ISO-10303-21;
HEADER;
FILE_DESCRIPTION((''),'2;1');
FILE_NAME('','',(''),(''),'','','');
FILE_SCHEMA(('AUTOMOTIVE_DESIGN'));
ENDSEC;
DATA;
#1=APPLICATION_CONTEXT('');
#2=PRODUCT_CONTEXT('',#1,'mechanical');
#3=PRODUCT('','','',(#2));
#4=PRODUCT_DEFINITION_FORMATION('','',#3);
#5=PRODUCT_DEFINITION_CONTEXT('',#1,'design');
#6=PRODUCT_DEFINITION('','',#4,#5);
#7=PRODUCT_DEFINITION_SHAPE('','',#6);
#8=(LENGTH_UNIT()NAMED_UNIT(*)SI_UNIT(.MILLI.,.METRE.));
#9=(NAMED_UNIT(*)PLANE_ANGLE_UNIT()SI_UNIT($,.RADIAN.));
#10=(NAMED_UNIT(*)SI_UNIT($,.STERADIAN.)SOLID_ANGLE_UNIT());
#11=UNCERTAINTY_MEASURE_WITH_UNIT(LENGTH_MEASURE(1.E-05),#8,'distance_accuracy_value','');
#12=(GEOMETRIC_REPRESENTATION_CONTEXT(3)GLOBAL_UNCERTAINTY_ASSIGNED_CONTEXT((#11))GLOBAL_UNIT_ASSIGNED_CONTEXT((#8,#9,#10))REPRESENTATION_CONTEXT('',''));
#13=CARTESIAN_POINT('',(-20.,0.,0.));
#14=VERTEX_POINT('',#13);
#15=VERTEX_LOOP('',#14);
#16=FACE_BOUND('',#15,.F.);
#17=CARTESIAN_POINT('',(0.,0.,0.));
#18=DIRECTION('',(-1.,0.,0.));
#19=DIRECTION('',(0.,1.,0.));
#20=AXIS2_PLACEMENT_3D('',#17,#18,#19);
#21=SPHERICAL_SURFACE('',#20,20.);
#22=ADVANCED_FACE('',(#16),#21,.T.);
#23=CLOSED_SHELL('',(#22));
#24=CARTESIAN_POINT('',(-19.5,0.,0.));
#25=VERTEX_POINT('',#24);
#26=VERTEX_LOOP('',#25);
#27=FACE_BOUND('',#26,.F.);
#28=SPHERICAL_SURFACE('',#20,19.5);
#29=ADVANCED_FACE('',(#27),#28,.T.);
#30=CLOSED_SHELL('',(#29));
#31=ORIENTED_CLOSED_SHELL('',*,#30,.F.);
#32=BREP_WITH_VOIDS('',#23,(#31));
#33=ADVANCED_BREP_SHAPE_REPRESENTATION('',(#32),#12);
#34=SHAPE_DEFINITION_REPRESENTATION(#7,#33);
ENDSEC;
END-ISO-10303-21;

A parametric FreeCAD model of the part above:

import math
import FreeCAD as App
import Part
import Sketcher
from FreeCAD import Vector

doc = App.newDocument("Part")
params = doc.addObject("Spreadsheet::Sheet", "Params")
for row, (alias, value) in enumerate([
    ("sketch1_radius", "20 mm"),
    ("sketch1_radius2", "19.5 mm"),
    ("revolution_angle", "360 deg"),
], start=1):
    params.set(f"A{row}", alias)
    params.set(f"B{row}", "=" + value)
    params.setAlias(f"B{row}", alias)

body = doc.addObject("PartDesign::Body", "Body")

# Sketch on XY plane
sketch1 = body.newObject("Sketcher::SketchObject", "Sketch")
sketch1.AttachmentSupport = (doc.getObject("XY_Plane"), [""])
sketch1.MapMode = "FlatFace"
sketch1.addGeometry([
    Part.LineSegment(Vector(19.5, 0, 0), Vector(20, 0, 0)),
    Part.ArcOfCircle(Part.Circle(Vector(0, 0, 0), Vector(0, 0, 1), 20), math.radians(0), math.radians(180)),
    Part.LineSegment(Vector(-20, 0, 0), Vector(-19.5, 0, 0)),
    Part.ArcOfCircle(Part.Circle(Vector(0, 0, 0), Vector(0, 0, 1), 19.5), math.radians(0), math.radians(180)),
], False)
sketch1.addConstraint([
    Sketcher.Constraint("Coincident", 0, 2, 1, 1),
    Sketcher.Constraint("Coincident", 1, 2, 2, 1),
    Sketcher.Constraint("Coincident", 2, 2, 3, 2),
    Sketcher.Constraint("Coincident", 3, 1, 0, 1),
    Sketcher.Constraint("Horizontal", 0),
    Sketcher.Constraint("Horizontal", 2),
    Sketcher.Constraint("Coincident", 1, 3, -1, 1),
    Sketcher.Constraint("Coincident", 3, 3, -1, 1),
    Sketcher.Constraint("PointOnObject", 0, 2, -1),
    Sketcher.Constraint("PointOnObject", 1, 2, -1),
    Sketcher.Constraint("Radius", 1, 20.0),
    Sketcher.Constraint("Radius", 3, 19.5),
])
sketch1.setExpression("Constraints[10]", "Params.sketch1_radius")
sketch1.setExpression("Constraints[11]", "Params.sketch1_radius2")
revolution = body.newObject("PartDesign::Revolution", "Revolution")
revolution.Profile = sketch1
revolution.ReferenceAxis = (sketch1, ["H_Axis"])
revolution.setExpression("Angle", "Params.revolution_angle")

doc.recompute()
